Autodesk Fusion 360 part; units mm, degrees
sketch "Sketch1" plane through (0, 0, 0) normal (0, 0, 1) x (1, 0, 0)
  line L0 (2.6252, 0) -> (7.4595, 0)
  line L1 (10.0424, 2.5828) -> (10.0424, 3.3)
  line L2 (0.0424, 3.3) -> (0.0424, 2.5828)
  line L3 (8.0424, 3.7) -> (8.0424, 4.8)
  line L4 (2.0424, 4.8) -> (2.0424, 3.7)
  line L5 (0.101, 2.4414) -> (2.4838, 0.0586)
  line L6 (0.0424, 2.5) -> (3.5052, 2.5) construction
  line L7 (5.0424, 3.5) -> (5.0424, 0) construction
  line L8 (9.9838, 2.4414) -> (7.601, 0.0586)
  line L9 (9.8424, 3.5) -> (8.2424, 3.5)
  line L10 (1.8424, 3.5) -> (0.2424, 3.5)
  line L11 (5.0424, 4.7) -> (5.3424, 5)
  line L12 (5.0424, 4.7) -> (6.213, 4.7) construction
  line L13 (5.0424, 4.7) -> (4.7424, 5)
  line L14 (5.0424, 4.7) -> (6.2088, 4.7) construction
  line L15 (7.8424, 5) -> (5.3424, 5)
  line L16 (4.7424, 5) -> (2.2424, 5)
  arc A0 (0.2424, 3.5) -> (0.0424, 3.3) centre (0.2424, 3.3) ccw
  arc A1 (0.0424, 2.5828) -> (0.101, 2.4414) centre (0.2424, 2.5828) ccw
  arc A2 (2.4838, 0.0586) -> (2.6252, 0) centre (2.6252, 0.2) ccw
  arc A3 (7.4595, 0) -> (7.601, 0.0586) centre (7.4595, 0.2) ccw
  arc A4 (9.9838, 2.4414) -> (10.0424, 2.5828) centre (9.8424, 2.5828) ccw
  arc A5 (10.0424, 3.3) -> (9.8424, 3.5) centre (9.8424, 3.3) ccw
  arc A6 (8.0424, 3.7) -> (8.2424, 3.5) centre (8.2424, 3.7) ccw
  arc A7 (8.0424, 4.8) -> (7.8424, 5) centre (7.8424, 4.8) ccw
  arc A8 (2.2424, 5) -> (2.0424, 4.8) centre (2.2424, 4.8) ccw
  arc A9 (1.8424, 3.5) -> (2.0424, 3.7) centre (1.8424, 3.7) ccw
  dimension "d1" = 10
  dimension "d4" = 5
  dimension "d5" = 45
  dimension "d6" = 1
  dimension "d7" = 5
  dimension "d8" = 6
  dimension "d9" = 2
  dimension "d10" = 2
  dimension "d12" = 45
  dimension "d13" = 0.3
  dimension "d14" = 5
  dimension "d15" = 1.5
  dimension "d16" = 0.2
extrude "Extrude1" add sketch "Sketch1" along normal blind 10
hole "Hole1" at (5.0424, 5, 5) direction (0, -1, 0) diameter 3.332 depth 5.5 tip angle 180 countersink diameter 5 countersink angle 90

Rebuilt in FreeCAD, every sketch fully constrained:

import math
import FreeCAD as App
import Part
import Sketcher
from FreeCAD import Vector
Q = App.Units.Quantity

doc = App.newDocument("Part")
body = doc.addObject("PartDesign::Body", "Body")

sketch1 = body.newObject("Sketcher::SketchObject", "Sketch")
sketch1.AttachmentSupport = (doc.getObject("XY_Plane"), [""])
sketch1.MapMode = "FlatFace"
sketch1.addGeometry(Part.ArcOfCircle(Part.Circle(Vector(2.6252, 0.2, 0), Vector(0, 0, 1), 0.19997), math.radians(-135), math.radians(-90)), False)
sketch1.addGeometry(Part.LineSegment(Vector(2.6252, 0, 0), Vector(7.4595, 0, 0)), False)
sketch1.addGeometry(Part.ArcOfCircle(Part.Circle(Vector(7.4595, 0.2, 0), Vector(0, 0, 1), 0.2), math.radians(-90), math.radians(-44.979747)), False)
sketch1.addGeometry(Part.LineSegment(Vector(7.601, 0.0586, 0), Vector(9.9838, 2.4414, 0)), False)
sketch1.addGeometry(Part.ArcOfCircle(Part.Circle(Vector(9.8424, 2.5828, 0), Vector(0, 0, 1), 0.19997), math.radians(-45), math.radians(0)), False)
sketch1.addGeometry(Part.LineSegment(Vector(10.0424, 2.5828, 0), Vector(10.0424, 3.3, 0)), False)
sketch1.addGeometry(Part.ArcOfCircle(Part.Circle(Vector(9.8424, 3.3, 0), Vector(0, 0, 1), 0.2), math.radians(0), math.radians(90)), False)
sketch1.addGeometry(Part.LineSegment(Vector(9.8424, 3.5, 0), Vector(8.2424, 3.5, 0)), False)
sketch1.addGeometry(Part.ArcOfCircle(Part.Circle(Vector(8.2424, 3.7, 0), Vector(0, 0, 1), 0.2), math.radians(180), math.radians(270)), False)
sketch1.addGeometry(Part.LineSegment(Vector(8.0424, 3.7, 0), Vector(8.0424, 4.8, 0)), False)
sketch1.addGeometry(Part.ArcOfCircle(Part.Circle(Vector(7.8424, 4.8, 0), Vector(0, 0, 1), 0.2), math.radians(0), math.radians(90)), False)
sketch1.addGeometry(Part.LineSegment(Vector(7.8424, 5, 0), Vector(5.3424, 5, 0)), False)
sketch1.addGeometry(Part.LineSegment(Vector(5.3424, 5, 0), Vector(5.0424, 4.7, 0)), False)
sketch1.addGeometry(Part.LineSegment(Vector(5.0424, 4.7, 0), Vector(4.7424, 5, 0)), False)
sketch1.addGeometry(Part.LineSegment(Vector(4.7424, 5, 0), Vector(2.2424, 5, 0)), False)
sketch1.addGeometry(Part.ArcOfCircle(Part.Circle(Vector(2.2424, 4.8, 0), Vector(0, 0, 1), 0.2), math.radians(90), math.radians(180)), False)
sketch1.addGeometry(Part.LineSegment(Vector(2.0424, 4.8, 0), Vector(2.0424, 3.7, 0)), False)
sketch1.addGeometry(Part.ArcOfCircle(Part.Circle(Vector(1.8424, 3.7, 0), Vector(0, 0, 1), 0.2), math.radians(-90), math.radians(0)), False)
sketch1.addGeometry(Part.LineSegment(Vector(1.8424, 3.5, 0), Vector(0.2424, 3.5, 0)), False)
sketch1.addGeometry(Part.ArcOfCircle(Part.Circle(Vector(0.2424, 3.3, 0), Vector(0, 0, 1), 0.2), math.radians(90), math.radians(180)), False)
sketch1.addGeometry(Part.LineSegment(Vector(0.0424, 3.3, 0), Vector(0.0424, 2.5828, 0)), False)
sketch1.addGeometry(Part.ArcOfCircle(Part.Circle(Vector(0.2424, 2.5828, 0), Vector(0, 0, 1), 0.2), math.radians(180), math.radians(225)), False)
sketch1.addGeometry(Part.LineSegment(Vector(0.101, 2.4414, 0), Vector(2.4838, 0.0586, 0)), False)
sketch1.addConstraint(Sketcher.Constraint("Tangent", 0, 2, 1, 1))
sketch1.addConstraint(Sketcher.Constraint("Tangent", 1, 2, 2, 1))
sketch1.addConstraint(Sketcher.Constraint("Tangent", 2, 2, 3, 1))
sketch1.addConstraint(Sketcher.Constraint("Tangent", 3, 2, 4, 1))
sketch1.addConstraint(Sketcher.Constraint("Tangent", 4, 2, 5, 1))
sketch1.addConstraint(Sketcher.Constraint("Tangent", 5, 2, 6, 1))
sketch1.addConstraint(Sketcher.Constraint("Tangent", 6, 2, 7, 1))
sketch1.addConstraint(Sketcher.Constraint("Tangent", 7, 2, 8, 2))
sketch1.addConstraint(Sketcher.Constraint("Tangent", 8, 1, 9, 1))
sketch1.addConstraint(Sketcher.Constraint("Tangent", 9, 2, 10, 1))
sketch1.addConstraint(Sketcher.Constraint("Tangent", 10, 2, 11, 1))
sketch1.addConstraint(Sketcher.Constraint("Coincident", 11, 2, 12, 1))
sketch1.addConstraint(Sketcher.Constraint("Coincident", 12, 2, 13, 1))
sketch1.addConstraint(Sketcher.Constraint("Coincident", 13, 2, 14, 1))
sketch1.addConstraint(Sketcher.Constraint("Tangent", 14, 2, 15, 1))
sketch1.addConstraint(Sketcher.Constraint("Tangent", 15, 2, 16, 1))
sketch1.addConstraint(Sketcher.Constraint("Tangent", 16, 2, 17, 2))
sketch1.addConstraint(Sketcher.Constraint("Tangent", 17, 1, 18, 1))
sketch1.addConstraint(Sketcher.Constraint("Tangent", 18, 2, 19, 1))
sketch1.addConstraint(Sketcher.Constraint("Tangent", 19, 2, 20, 1))
sketch1.addConstraint(Sketcher.Constraint("Tangent", 20, 2, 21, 1))
sketch1.addConstraint(Sketcher.Constraint("Tangent", 21, 2, 22, 1))
sketch1.addConstraint(Sketcher.Constraint("Tangent", 22, 2, 0, 1))
sketch1.addConstraint(Sketcher.Constraint("Horizontal", 1))
sketch1.addConstraint(Sketcher.Constraint("Vertical", 5))
sketch1.addConstraint(Sketcher.Constraint("Horizontal", 7))
sketch1.addConstraint(Sketcher.Constraint("Vertical", 9))
sketch1.addConstraint(Sketcher.Constraint("Horizontal", 11))
sketch1.addConstraint(Sketcher.Constraint("Horizontal", 14))
sketch1.addConstraint(Sketcher.Constraint("Vertical", 16))
sketch1.addConstraint(Sketcher.Constraint("Horizontal", 18))
sketch1.addConstraint(Sketcher.Constraint("Vertical", 20))
sketch1.addConstraint(Sketcher.Constraint("Equal", 0, 2))
sketch1.addConstraint(Sketcher.Constraint("Equal", 2, 4))
sketch1.addConstraint(Sketcher.Constraint("Equal", 4, 6))
sketch1.addConstraint(Sketcher.Constraint("Equal", 6, 8))
sketch1.addConstraint(Sketcher.Constraint("Equal", 8, 10))
sketch1.addConstraint(Sketcher.Constraint("Equal", 10, 15))
sketch1.addConstraint(Sketcher.Constraint("Equal", 15, 17))
sketch1.addConstraint(Sketcher.Constraint("Equal", 17, 19))
sketch1.addConstraint(Sketcher.Constraint("Equal", 19, 21))
sketch1.addConstraint(Sketcher.Constraint("PointOnObject", 0, 2, -1))
sketch1.addConstraint(Sketcher.Constraint("Parallel", 3, 12))
sketch1.addConstraint(Sketcher.Constraint("Perpendicular", 12, 13))
sketch1.addConstraint(Sketcher.Constraint("Parallel", 13, 22))
sketch1.addConstraint(Sketcher.Constraint("Horizontal", 10, 3, 15, 3))
sketch1.addConstraint(Sketcher.Constraint("Horizontal", 8, 3, 17, 3))
sketch1.addConstraint(Sketcher.Constraint("Horizontal", 4, 3, 21, 3))
sketch1.addConstraint(Sketcher.Constraint("Horizontal", 3, 2, 21, 2))
sketch1.addConstraint(Sketcher.Constraint("Equal", 11, 14))
sketch1.addConstraint(Sketcher.Constraint("Equal", 7, 18))
sketch1.addConstraint(Sketcher.Constraint("Radius", 0, Q("0.2 mm")))
sketch1.addConstraint(Sketcher.Constraint("DistanceY", -1, 1, 10, 2, Q("5 mm")))
sketch1.addConstraint(Sketcher.Constraint("DistanceX", 10, 3, 6, 3, Q("2 mm")))
sketch1.addConstraint(Sketcher.Constraint("DistanceX", 15, 3, 8, 3, Q("6 mm")))
sketch1.addConstraint(Sketcher.Constraint("DistanceY", 6, 3, 10, 3, Q("1.5 mm")))
sketch1.addConstraint(Sketcher.Constraint("DistanceX", 12, 2, 11, 2, Q("0.3 mm")))
sketch1.addConstraint(Sketcher.Constraint("DistanceX", 1, 1, 1, 2, Q("4.8343 mm")))
sketch1.addConstraint(Sketcher.Constraint("DistanceX", -1, 1, 2, 2, Q("7.601 mm")))
pad1 = body.newObject("PartDesign::Pad", "Pad")
pad1.Profile = sketch1
pad1.Length = 10

sketch2 = body.newObject("Sketcher::SketchObject", "Sketch001")
sketch2.AttachmentSupport = (doc.getObject("XZ_Plane"), [""])
sketch2.MapMode = "FlatFace"
sketch2.AttachmentOffset = App.Placement(Vector(0, 0, -5), App.Rotation())
sketch2.addGeometry(Part.Circle(Vector(5.0424, 5, 0), Vector(0, 0, 1), 1.666), False)
sketch2.addConstraint(Sketcher.Constraint("Diameter", 0, Q("3.332 mm")))
sketch2.addConstraint(Sketcher.Constraint("DistanceY", -1, 1, 0, 3, Q("5 mm")))
sketch2.addConstraint(Sketcher.Constraint("DistanceX", -1, 1, 0, 3, Q("5.0424 mm")))
doc.recompute()
hole = body.newObject("PartDesign::Hole", "Hole")
hole.Profile = sketch2
hole.ThreadType = "None"
hole.Diameter = 3.332
hole.DepthType = "Dimension"
hole.Depth = 5.5
hole.DrillPoint = "Flat"
hole.HoleCutType = "Countersink"
hole.HoleCutDiameter = 5
hole.HoleCutCountersinkAngle = 90
hole.Reversed = True

doc.recompute()
